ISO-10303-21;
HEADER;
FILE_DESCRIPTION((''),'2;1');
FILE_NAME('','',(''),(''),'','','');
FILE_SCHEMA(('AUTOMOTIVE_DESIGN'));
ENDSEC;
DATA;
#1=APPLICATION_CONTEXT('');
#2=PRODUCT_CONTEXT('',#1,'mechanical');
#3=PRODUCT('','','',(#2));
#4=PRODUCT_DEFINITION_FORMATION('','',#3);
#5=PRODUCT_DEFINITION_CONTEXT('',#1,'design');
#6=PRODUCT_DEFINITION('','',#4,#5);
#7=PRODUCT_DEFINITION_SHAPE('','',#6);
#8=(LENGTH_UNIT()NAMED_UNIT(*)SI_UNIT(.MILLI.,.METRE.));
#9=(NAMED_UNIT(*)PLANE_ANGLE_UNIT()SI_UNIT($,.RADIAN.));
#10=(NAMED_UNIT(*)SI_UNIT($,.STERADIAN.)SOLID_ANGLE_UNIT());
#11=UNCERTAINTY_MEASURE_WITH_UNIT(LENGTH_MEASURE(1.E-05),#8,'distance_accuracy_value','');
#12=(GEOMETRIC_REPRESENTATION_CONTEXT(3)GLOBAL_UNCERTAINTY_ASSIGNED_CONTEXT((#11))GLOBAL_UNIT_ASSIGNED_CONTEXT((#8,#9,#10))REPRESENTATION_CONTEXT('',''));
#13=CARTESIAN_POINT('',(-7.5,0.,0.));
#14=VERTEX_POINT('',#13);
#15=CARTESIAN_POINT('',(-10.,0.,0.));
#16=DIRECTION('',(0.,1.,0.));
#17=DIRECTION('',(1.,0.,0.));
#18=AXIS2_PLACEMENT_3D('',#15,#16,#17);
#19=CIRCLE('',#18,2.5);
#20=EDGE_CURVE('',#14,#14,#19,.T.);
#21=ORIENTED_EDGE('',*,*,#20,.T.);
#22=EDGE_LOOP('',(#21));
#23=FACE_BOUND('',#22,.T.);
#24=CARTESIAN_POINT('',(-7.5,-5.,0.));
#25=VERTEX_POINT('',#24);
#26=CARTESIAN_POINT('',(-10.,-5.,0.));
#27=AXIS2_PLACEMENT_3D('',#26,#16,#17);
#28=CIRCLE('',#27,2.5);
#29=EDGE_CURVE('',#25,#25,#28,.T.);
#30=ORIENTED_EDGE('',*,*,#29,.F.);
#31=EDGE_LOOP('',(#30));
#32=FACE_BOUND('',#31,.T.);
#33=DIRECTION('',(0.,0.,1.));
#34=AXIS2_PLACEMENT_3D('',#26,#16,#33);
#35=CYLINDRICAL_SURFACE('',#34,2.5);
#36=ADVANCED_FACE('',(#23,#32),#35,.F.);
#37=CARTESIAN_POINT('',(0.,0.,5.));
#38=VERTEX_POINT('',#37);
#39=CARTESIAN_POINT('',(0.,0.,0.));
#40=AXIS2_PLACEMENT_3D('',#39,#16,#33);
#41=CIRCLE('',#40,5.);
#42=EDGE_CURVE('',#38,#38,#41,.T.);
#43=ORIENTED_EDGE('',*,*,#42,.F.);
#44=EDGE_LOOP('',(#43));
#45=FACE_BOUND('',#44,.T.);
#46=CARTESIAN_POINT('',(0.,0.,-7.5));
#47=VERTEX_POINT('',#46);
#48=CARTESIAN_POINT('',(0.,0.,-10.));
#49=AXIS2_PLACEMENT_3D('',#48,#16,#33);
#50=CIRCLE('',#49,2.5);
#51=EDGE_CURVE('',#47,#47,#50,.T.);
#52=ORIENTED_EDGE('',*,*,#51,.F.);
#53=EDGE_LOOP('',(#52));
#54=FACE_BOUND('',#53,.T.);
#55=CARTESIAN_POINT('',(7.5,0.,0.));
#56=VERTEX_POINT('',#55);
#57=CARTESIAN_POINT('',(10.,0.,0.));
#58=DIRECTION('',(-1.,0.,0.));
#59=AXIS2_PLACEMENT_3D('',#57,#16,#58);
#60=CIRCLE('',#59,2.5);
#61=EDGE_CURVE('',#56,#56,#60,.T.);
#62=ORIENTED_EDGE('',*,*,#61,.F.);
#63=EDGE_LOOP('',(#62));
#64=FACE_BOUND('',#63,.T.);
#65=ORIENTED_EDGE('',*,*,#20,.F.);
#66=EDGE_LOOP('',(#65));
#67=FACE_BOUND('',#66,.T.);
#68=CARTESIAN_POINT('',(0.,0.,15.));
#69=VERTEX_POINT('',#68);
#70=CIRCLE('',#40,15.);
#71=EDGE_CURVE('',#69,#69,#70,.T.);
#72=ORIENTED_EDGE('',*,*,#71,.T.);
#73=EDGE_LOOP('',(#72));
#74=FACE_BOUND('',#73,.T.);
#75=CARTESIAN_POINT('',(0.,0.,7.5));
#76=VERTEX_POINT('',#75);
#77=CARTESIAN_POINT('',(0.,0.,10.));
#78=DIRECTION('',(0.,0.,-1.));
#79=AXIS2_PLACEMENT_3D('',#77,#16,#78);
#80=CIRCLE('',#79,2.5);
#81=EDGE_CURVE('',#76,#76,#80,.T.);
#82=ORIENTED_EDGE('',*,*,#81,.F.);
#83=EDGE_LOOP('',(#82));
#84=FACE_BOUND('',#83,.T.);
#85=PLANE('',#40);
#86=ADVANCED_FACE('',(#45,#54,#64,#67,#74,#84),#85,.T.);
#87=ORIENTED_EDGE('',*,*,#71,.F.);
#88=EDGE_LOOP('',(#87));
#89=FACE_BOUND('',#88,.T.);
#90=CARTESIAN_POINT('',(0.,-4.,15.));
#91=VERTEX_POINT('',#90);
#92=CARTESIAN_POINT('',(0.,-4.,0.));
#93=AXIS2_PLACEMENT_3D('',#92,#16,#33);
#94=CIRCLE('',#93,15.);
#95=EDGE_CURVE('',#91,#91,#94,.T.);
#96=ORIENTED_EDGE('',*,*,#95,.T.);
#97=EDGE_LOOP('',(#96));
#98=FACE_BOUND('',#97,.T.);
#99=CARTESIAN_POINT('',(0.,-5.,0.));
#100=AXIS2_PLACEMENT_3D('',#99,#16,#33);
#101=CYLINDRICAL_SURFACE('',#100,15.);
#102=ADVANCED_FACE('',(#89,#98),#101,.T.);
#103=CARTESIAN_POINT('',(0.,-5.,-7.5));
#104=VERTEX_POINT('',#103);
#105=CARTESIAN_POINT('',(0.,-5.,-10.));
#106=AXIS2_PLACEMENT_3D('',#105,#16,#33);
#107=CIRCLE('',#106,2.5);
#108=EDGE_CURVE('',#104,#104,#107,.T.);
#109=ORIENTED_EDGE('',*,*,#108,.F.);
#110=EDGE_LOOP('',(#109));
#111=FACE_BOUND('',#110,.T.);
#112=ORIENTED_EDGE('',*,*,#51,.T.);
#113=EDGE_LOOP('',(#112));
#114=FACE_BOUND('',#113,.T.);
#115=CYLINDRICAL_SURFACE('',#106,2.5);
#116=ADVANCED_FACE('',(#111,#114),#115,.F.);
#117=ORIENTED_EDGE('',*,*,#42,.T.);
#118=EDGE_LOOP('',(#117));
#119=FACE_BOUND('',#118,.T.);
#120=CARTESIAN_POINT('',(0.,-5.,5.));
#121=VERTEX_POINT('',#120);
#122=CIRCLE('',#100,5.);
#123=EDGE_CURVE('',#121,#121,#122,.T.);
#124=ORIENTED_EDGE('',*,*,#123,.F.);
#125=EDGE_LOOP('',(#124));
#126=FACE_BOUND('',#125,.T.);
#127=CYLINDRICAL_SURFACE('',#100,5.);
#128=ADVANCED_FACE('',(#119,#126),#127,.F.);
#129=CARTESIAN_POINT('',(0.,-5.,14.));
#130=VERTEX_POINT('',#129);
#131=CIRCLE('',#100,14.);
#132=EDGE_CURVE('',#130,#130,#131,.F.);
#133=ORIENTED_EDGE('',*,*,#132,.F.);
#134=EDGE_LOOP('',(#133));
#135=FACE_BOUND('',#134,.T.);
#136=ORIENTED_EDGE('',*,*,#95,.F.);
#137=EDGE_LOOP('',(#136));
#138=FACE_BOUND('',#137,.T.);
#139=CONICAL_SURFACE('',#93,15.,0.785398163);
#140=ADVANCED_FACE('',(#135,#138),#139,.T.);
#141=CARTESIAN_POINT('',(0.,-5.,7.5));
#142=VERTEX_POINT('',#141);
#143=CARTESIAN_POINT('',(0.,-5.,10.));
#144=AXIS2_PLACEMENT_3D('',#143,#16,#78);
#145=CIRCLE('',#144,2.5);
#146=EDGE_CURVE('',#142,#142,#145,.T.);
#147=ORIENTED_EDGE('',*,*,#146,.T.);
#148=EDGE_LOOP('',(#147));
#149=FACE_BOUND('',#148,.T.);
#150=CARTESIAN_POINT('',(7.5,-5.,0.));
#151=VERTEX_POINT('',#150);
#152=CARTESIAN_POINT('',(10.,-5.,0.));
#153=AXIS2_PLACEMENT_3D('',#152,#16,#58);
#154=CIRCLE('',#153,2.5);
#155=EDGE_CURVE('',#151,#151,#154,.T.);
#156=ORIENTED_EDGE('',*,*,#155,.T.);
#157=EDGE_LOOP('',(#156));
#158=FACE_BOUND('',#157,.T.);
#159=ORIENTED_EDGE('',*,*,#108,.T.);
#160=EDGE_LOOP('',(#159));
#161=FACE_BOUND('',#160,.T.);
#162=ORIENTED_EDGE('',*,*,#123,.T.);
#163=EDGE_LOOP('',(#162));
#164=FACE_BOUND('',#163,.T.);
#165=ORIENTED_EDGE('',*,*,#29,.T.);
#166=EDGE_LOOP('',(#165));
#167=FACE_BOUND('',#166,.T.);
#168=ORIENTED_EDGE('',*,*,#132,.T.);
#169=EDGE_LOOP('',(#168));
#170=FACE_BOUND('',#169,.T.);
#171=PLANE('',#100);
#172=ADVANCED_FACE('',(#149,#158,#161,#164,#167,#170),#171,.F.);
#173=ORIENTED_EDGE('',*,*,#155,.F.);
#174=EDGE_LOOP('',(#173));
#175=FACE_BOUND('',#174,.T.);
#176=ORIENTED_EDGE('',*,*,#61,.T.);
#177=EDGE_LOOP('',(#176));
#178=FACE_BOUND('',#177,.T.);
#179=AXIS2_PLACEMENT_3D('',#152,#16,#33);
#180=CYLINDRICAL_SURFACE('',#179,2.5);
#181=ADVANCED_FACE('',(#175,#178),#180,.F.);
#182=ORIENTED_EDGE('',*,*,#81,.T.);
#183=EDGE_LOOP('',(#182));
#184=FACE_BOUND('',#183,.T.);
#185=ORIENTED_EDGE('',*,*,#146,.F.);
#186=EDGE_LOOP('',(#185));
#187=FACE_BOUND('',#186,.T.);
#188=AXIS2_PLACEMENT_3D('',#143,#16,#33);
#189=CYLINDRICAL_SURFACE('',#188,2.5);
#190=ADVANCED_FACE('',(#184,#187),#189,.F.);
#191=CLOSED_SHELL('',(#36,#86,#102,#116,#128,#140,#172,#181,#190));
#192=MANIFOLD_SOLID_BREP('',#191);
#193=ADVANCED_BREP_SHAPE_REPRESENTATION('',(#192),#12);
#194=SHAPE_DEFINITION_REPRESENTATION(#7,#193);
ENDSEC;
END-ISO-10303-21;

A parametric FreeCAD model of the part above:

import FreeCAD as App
import Part
import Sketcher

V = App.Vector
Q = App.Units.Quantity


def edges_at(feature, points):
    """Names of the edges that pass closest to the given points."""
    edges = feature.Shape.Edges
    near = lambda p: min(range(len(edges)), key=lambda i: edges[i].distToShape(Part.Vertex(*p))[0])
    return sorted({f"Edge{near(p) + 1}" for p in points})

doc = App.newDocument("Part")
body = doc.addObject("PartDesign::Body", "Body")

sketch1 = body.newObject("Sketcher::SketchObject", "Sketch")
sketch1.AttachmentSupport = (doc.getObject("XZ_Plane"), [""])
sketch1.MapMode = "FlatFace"
sketch1.addGeometry([
    Part.Circle(V(0, 0, 0), V(0, 0, 1), 15),
    Part.Circle(V(0, 0, 0), V(0, 0, 1), 5),
], False)
sketch1.addConstraint([
    Sketcher.Constraint("Coincident", 0, 3, -1, 1),
    Sketcher.Constraint("Coincident", 1, 3, -1, 1),
    Sketcher.Constraint("Diameter", 0, Q("30 mm")),
    Sketcher.Constraint("Diameter", 1, Q("10 mm")),
])
pad1 = body.newObject("PartDesign::Pad", "Pad")
pad1.Profile = sketch1
pad1.Length = 5

sketch2 = body.newObject("Sketcher::SketchObject", "Sketch001")
sketch2.AttachmentSupport = (doc.getObject("XZ_Plane"), [""])
sketch2.MapMode = "FlatFace"
sketch2.addGeometry(Part.Circle(V(0, -10, 0), V(0, 0, 1), 2.5), False)
sketch2.addConstraint([
    Sketcher.Constraint("PointOnObject", 0, 3, -2),
    Sketcher.Constraint("Diameter", 0, Q("5 mm")),
    Sketcher.Constraint("DistanceY", 0, 3, -1, 1, Q("10 mm")),
])
pocket1 = body.newObject("PartDesign::Pocket", "Pocket")
pocket1.Profile = sketch2
pocket1.Length = 5
pocket1.Reversed = True
doc.recompute()

polarpattern = body.newObject("PartDesign::PolarPattern", "PolarPattern")
polarpattern.Originals = [pocket1]
polarpattern.Axis = (doc.getObject("Y_Axis"), [""])
polarpattern.Angle = 360
polarpattern.Occurrences = 4
body.Tip = polarpattern
doc.recompute()

chamfer = body.newObject("PartDesign::Chamfer", "Chamfer")
chamfer.Base = (polarpattern, edges_at(polarpattern, [(-15, -5, 0)]))
chamfer.Size = 1

doc.recompute()
